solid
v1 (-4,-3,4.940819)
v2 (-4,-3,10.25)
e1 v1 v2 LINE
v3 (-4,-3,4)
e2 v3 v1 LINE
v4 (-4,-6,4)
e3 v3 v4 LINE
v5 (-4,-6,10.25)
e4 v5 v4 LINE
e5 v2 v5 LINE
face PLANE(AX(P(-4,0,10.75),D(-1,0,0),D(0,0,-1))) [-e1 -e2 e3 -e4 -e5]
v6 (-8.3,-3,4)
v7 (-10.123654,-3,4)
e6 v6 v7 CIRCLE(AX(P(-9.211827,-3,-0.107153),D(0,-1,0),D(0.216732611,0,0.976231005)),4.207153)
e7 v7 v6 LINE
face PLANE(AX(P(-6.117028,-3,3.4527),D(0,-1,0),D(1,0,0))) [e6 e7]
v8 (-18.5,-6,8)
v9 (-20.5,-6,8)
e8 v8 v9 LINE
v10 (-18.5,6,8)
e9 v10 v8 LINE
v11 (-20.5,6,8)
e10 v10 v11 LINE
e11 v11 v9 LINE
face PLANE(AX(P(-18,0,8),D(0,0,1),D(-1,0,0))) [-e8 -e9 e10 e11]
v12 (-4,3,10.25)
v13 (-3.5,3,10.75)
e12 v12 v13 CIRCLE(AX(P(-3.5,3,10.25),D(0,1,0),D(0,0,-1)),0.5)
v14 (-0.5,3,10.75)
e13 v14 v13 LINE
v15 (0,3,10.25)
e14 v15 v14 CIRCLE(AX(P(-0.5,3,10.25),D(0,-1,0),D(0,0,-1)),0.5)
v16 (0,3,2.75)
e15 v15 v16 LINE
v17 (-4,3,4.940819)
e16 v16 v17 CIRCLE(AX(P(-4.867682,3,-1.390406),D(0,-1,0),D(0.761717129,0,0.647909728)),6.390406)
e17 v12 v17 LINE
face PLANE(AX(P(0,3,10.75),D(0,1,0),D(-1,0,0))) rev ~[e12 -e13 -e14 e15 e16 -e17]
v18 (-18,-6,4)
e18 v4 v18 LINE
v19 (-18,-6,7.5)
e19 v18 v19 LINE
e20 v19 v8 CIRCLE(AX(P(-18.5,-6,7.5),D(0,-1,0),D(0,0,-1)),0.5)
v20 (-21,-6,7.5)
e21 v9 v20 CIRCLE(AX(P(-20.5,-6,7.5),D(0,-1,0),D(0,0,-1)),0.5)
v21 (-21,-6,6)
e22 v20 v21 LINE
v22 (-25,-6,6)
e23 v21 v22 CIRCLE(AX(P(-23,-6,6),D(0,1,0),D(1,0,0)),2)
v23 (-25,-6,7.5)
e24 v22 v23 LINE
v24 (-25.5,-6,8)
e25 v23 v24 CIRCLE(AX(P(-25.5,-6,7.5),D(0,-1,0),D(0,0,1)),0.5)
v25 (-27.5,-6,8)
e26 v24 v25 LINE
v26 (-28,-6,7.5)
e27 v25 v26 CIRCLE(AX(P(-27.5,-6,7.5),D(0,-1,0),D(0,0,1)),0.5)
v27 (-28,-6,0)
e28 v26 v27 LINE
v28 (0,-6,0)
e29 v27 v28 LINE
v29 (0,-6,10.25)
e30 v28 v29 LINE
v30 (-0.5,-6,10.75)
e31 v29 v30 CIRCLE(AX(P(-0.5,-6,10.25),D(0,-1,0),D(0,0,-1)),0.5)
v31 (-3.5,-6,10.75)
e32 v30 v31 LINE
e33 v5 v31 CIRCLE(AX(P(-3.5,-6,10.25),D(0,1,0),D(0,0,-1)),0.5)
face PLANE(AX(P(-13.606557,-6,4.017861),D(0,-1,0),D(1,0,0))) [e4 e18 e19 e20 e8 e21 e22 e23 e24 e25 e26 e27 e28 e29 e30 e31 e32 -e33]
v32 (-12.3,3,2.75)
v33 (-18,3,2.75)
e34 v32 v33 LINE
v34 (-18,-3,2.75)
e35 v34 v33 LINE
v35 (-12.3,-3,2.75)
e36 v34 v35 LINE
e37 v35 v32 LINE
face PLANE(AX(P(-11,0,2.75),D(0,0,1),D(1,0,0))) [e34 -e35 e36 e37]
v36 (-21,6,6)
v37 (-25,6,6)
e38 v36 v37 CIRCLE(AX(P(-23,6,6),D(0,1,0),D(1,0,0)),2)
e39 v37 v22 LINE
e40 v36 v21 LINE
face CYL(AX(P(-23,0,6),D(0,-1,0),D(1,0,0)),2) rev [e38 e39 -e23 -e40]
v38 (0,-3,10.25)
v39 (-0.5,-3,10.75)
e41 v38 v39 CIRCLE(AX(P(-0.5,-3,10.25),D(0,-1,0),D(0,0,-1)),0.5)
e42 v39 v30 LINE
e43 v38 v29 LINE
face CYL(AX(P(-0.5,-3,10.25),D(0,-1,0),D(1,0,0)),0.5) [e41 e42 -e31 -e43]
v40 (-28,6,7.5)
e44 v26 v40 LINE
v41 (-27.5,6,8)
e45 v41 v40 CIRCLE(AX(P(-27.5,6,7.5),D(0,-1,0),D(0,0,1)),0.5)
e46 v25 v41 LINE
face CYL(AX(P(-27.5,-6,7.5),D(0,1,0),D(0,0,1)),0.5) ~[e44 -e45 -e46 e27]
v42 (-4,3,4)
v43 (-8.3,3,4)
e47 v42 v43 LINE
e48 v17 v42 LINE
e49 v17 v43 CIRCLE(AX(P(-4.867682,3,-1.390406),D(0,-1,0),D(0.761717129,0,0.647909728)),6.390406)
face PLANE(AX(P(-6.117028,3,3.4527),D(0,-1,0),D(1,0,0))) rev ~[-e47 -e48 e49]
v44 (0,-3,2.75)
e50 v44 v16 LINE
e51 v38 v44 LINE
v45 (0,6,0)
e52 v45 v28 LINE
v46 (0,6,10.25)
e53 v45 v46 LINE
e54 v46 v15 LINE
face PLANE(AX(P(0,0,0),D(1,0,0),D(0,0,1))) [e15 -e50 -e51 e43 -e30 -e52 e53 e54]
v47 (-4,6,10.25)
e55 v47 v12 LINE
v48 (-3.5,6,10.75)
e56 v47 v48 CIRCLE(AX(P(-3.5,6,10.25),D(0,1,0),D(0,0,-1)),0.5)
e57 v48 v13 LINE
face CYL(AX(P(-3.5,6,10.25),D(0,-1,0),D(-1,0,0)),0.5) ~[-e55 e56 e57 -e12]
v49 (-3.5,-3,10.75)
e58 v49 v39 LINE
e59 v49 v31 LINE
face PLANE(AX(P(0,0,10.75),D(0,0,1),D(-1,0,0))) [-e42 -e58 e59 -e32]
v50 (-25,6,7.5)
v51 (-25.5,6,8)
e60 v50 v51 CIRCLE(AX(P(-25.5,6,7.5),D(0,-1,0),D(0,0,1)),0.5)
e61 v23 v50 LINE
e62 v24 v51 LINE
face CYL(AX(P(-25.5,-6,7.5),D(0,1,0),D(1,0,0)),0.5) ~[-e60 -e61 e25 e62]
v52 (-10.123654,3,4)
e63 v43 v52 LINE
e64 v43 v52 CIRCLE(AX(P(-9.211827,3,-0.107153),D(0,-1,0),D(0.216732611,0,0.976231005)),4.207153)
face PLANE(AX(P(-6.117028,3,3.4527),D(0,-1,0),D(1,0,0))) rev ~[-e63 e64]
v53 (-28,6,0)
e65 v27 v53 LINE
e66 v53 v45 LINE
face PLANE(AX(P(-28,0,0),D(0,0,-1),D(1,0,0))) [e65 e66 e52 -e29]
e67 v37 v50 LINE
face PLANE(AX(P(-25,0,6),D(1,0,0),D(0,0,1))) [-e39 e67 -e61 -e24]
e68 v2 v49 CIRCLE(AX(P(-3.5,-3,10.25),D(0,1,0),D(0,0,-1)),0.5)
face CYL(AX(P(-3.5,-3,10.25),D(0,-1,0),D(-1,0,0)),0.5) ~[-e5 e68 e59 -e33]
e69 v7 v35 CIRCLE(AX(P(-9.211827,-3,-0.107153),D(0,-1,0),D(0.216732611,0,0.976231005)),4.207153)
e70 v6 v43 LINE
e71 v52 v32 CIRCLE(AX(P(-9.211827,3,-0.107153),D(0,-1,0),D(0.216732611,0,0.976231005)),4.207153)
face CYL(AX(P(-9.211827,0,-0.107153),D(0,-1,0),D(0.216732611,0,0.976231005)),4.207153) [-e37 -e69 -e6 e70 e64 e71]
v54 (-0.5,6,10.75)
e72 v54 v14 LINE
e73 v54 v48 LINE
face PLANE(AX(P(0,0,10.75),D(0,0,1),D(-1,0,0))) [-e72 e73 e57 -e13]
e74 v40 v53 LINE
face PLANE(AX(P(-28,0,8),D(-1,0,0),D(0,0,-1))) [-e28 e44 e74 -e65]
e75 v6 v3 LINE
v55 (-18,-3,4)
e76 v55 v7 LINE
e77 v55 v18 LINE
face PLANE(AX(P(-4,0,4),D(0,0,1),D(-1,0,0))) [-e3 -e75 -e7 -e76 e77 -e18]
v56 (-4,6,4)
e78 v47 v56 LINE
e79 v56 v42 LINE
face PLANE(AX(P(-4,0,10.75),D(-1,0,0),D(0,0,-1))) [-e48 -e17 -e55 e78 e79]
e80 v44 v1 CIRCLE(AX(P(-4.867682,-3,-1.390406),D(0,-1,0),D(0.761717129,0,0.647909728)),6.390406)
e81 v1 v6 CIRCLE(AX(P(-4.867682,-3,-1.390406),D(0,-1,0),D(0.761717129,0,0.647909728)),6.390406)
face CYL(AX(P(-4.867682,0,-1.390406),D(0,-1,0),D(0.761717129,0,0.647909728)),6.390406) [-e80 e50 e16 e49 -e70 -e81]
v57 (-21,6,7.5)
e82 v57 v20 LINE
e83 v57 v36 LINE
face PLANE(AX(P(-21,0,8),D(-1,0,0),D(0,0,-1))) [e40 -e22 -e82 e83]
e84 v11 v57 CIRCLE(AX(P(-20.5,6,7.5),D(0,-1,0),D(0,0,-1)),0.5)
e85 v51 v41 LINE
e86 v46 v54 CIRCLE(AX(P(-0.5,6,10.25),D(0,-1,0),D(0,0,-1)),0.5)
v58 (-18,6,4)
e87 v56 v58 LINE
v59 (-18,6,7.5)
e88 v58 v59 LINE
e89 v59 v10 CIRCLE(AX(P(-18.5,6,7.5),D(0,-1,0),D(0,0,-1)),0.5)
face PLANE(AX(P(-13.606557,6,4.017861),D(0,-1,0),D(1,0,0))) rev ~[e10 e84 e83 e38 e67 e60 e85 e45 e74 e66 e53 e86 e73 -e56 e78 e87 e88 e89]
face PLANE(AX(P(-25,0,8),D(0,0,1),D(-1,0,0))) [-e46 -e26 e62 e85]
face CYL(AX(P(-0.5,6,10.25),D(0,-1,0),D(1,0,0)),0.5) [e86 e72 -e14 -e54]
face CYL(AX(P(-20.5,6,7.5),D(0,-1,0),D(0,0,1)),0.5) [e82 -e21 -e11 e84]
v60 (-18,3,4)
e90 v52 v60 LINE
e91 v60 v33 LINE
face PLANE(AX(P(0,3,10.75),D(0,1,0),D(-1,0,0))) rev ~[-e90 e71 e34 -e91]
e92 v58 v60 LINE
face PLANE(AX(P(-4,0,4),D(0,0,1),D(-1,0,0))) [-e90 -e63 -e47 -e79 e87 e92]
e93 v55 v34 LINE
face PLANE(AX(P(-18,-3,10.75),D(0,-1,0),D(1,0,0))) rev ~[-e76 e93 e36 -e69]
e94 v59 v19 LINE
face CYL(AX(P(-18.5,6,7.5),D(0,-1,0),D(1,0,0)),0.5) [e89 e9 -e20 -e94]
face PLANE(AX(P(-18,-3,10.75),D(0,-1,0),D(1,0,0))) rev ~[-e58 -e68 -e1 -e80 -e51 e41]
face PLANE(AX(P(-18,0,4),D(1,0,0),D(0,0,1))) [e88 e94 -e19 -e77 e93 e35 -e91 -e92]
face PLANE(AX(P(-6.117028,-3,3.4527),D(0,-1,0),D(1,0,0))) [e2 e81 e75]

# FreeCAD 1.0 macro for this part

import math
import FreeCAD as App
import Part
import Sketcher
from FreeCAD import Vector


def edges_at(feature, points):
    """Names of the edges that pass closest to the given points."""
    edges = feature.Shape.Edges
    near = lambda p: min(range(len(edges)), key=lambda i: edges[i].distToShape(Part.Vertex(*p))[0])
    return sorted({f"Edge{near(p) + 1}" for p in points})

doc = App.newDocument("Part")
params = doc.addObject("Spreadsheet::Sheet", "Params")
for row, (alias, value) in enumerate([
    ("sketch1_radius", "2 mm"),
    ("sketch1_width", "28 mm"),
    ("sketch1_width2", "4 mm"),
    ("sketch1_width3", "14 mm"),
    ("sketch1_height", "2 mm"),
    ("pad1_length", "12 mm"),
    ("sketch2_width", "18 mm"),
    ("sketch2_height", "6 mm"),
    ("pocket1_length", "8 mm"),
    ("sketch3_width", "12.3 mm"),
    ("pad2_length", "6 mm"),
    ("fillet_radius", "0.5 mm"),
], start=1):
    params.set(f"A{row}", alias)
    params.set(f"B{row}", "=" + value)
    params.setAlias(f"B{row}", alias)

body = doc.addObject("PartDesign::Body", "Body")

# Sketch on XZ plane
sketch1 = body.newObject("Sketcher::SketchObject", "Sketch")
sketch1.AttachmentSupport = (doc.getObject("XZ_Plane"), [""])
sketch1.MapMode = "FlatFace"
sketch1.addGeometry([
    Part.LineSegment(Vector(-28, 0, 0), Vector(0, 0, 0)),  # 0
    Part.LineSegment(Vector(0, 0, 0), Vector(0, 10.8, 0)),  # 1
    Part.LineSegment(Vector(0, 10.8, 0), Vector(-4, 10.8, 0)),  # 2
    Part.LineSegment(Vector(-4, 10.8, 0), Vector(-4, 4, 0)),  # 3
    Part.LineSegment(Vector(-4, 4, 0), Vector(-18, 4, 0)),  # 4
    Part.LineSegment(Vector(-18, 4, 0), Vector(-18, 8, 0)),  # 5
    Part.LineSegment(Vector(-18, 8, 0), Vector(-21, 8, 0)),  # 6
    Part.LineSegment(Vector(-21, 8, 0), Vector(-21, 6, 0)),  # 7
    Part.ArcOfCircle(Part.Circle(Vector(-23, 6, 0), Vector(0, 0, 1), 2), math.radians(180), math.radians(360)),  # 8
    Part.LineSegment(Vector(-25, 6, 0), Vector(-25, 8, 0)),  # 9
    Part.LineSegment(Vector(-25, 8, 0), Vector(-28, 8, 0)),  # 10
    Part.LineSegment(Vector(-28, 8, 0), Vector(-28, 0, 0)),  # 11
], False)
sketch1.addConstraint([
    Sketcher.Constraint("Coincident", 0, 2, 1, 1),
    Sketcher.Constraint("Coincident", 1, 2, 2, 1),
    Sketcher.Constraint("Coincident", 2, 2, 3, 1),
    Sketcher.Constraint("Coincident", 3, 2, 4, 1),
    Sketcher.Constraint("Coincident", 4, 2, 5, 1),
    Sketcher.Constraint("Coincident", 5, 2, 6, 1),
    Sketcher.Constraint("Coincident", 6, 2, 7, 1),
    Sketcher.Constraint("Tangent", 7, 2, 8, 2),
    Sketcher.Constraint("Tangent", 8, 1, 9, 1),
    Sketcher.Constraint("Coincident", 9, 2, 10, 1),
    Sketcher.Constraint("Coincident", 10, 2, 11, 1),
    Sketcher.Constraint("Coincident", 11, 2, 0, 1),
    Sketcher.Constraint("Horizontal", 0),
    Sketcher.Constraint("Vertical", 1),
    Sketcher.Constraint("Horizontal", 2),
    Sketcher.Constraint("Vertical", 3),
    Sketcher.Constraint("Horizontal", 4),
    Sketcher.Constraint("Vertical", 5),
    Sketcher.Constraint("Horizontal", 6),
    Sketcher.Constraint("Vertical", 7),
    Sketcher.Constraint("Vertical", 9),
    Sketcher.Constraint("Horizontal", 10),
    Sketcher.Constraint("Vertical", 11),
    Sketcher.Constraint("Coincident", 0, 2, -1, 1),
    Sketcher.Constraint("Horizontal", 6, 2, 9, 2),
    Sketcher.Constraint("Equal", 6, 10),
    Sketcher.Constraint("Equal", 2, 5),
    Sketcher.Constraint("Radius", 8, 2.0),
    Sketcher.Constraint("DistanceX", 0, 1, 0, 2, 28.0),
    Sketcher.Constraint("DistanceX", 2, 2, 2, 1, 4.0),
    Sketcher.Constraint("DistanceX", 4, 2, 4, 1, 14.0),
    Sketcher.Constraint("DistanceY", 7, 2, 7, 1, 2.0),
    Sketcher.Constraint("DistanceY", 11, 2, 11, 1, 8.0),
    Sketcher.Constraint("DistanceY", 1, 1, 1, 2, 10.75),
])
sketch1.setExpression("Constraints[27]", "Params.sketch1_radius")
sketch1.setExpression("Constraints[28]", "Params.sketch1_width")
sketch1.setExpression("Constraints[29]", "Params.sketch1_width2")
sketch1.setExpression("Constraints[30]", "Params.sketch1_width3")
sketch1.setExpression("Constraints[31]", "Params.sketch1_height")
pad1 = body.newObject("PartDesign::Pad", "Pad")
pad1.Profile = sketch1
pad1.setExpression("Length", "Params.pad1_length")
pad1.Midplane = True

# Sketch on XY plane
sketch2 = body.newObject("Sketcher::SketchObject", "Sketch001")
sketch2.AttachmentSupport = (doc.getObject("XY_Plane"), [""])
sketch2.MapMode = "FlatFace"
sketch2.AttachmentOffset = App.Placement(Vector(0, 0, 10.75), App.Rotation())
sketch2.addGeometry([
    Part.LineSegment(Vector(-18, 3, 0), Vector(-18, -3, 0)),
    Part.LineSegment(Vector(-18, -3, 0), Vector(0, -3, 0)),
    Part.LineSegment(Vector(0, -3, 0), Vector(0, 3, 0)),
    Part.LineSegment(Vector(0, 3, 0), Vector(-18, 3, 0)),
], False)
sketch2.addConstraint([
    Sketcher.Constraint("Coincident", 0, 2, 1, 1),
    Sketcher.Constraint("Coincident", 1, 2, 2, 1),
    Sketcher.Constraint("Coincident", 2, 2, 3, 1),
    Sketcher.Constraint("Coincident", 3, 2, 0, 1),
    Sketcher.Constraint("Vertical", 0),
    Sketcher.Constraint("Horizontal", 1),
    Sketcher.Constraint("Vertical", 2),
    Sketcher.Constraint("Horizontal", 3),
    Sketcher.Constraint("Symmetric", 1, 2, 2, 2, -1, 1),
    Sketcher.Constraint("DistanceX", 1, 1, 1, 2, 18.0),
    Sketcher.Constraint("DistanceY", 0, 2, 0, 1, 6.0),
])
sketch2.setExpression("Constraints[9]", "Params.sketch2_width")
sketch2.setExpression("Constraints[10]", "Params.sketch2_height")
pocket1 = body.newObject("PartDesign::Pocket", "Pocket")
pocket1.Profile = sketch2
pocket1.setExpression("Length", "Params.pocket1_length")

# Sketch on XZ plane
sketch3 = body.newObject("Sketcher::SketchObject", "Sketch002")
sketch3.AttachmentSupport = (doc.getObject("XZ_Plane"), [""])
sketch3.MapMode = "FlatFace"
sketch3.addGeometry([
    Part.LineSegment(Vector(-12.3, 2.8, 0), Vector(0, 2.8, 0)),
    Part.ArcOfCircle(Part.Circle(Vector(-4.9, -1.4, 0), Vector(0, 0, 1), 6.4), math.radians(40), math.radians(122)),
    Part.ArcOfCircle(Part.Circle(Vector(-9.2, -0.1, 0), Vector(0, 0, 1), 4.2), math.radians(77), math.radians(137)),
], False)
sketch3.addConstraint([
    Sketcher.Constraint("Coincident", 0, 2, 1, 1),
    Sketcher.Constraint("Coincident", 1, 2, 2, 1),
    Sketcher.Constraint("Coincident", 2, 2, 0, 1),
    Sketcher.Constraint("Horizontal", 0),
    Sketcher.Constraint("PointOnObject", 0, 2, -2),
    Sketcher.Constraint("DistanceX", 0, 1, 0, 2, 12.3),
    Sketcher.Constraint("DistanceY", -1, 1, 1, 2, 4.0),
    Sketcher.Constraint("DistanceX", 2, 2, 1, 2, 4.0),
    Sketcher.Constraint("DistanceY", -1, 1, 0, 2, 2.75),
    Sketcher.Constraint("Radius", 1, 6.390406),
    Sketcher.Constraint("Radius", 2, 4.207153),
])
sketch3.setExpression("Constraints[5]", "Params.sketch3_width")
pad2 = body.newObject("PartDesign::Pad", "Pad001")
pad2.Profile = sketch3
pad2.setExpression("Length", "Params.pad2_length")
pad2.Midplane = True
doc.recompute()

fillet = body.newObject("PartDesign::Fillet", "Fillet")
fillet.Base = (pad2, edges_at(pad2, [
    (-21, 0, 8),
    (-25, 0, 8),
    (-28, 0, 8),
    (-18, 0, 8),
    (0, -4.5, 10.75),
    (0, 4.5, 10.75),
    (-4, 4.5, 10.75),
    (-4, -4.5, 10.75),
]))
fillet.setExpression("Radius", "Params.fillet_radius")

doc.recompute()
